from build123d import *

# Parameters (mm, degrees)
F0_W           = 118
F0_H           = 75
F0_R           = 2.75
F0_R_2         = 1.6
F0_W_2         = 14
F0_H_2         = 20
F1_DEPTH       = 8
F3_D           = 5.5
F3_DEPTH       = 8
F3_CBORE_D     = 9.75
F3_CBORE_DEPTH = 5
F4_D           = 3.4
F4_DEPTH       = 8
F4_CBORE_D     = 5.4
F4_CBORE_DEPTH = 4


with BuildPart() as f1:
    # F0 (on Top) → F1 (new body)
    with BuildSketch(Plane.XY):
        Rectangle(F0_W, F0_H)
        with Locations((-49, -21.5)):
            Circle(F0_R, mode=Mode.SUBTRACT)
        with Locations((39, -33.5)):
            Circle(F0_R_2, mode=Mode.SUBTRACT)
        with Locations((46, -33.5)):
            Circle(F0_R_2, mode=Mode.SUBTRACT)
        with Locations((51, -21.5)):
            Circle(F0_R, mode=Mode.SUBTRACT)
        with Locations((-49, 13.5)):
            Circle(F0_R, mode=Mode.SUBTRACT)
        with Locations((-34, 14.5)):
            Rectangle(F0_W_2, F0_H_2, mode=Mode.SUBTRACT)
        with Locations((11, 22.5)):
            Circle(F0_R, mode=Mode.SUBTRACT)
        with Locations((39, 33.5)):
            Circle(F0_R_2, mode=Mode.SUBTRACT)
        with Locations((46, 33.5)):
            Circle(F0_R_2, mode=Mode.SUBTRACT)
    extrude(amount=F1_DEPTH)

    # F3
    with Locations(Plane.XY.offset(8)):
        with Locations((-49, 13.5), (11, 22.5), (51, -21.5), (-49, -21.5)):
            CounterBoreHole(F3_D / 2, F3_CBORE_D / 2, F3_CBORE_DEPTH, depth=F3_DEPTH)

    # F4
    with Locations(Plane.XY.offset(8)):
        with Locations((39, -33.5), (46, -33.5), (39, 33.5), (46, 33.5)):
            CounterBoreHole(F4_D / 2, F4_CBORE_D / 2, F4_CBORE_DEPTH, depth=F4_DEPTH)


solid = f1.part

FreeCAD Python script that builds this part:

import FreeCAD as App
import Part
import Sketcher
from FreeCAD import Vector


def add_polygon(sketch, points):
    """Adds a closed chain of lines whose ends are joined by coincident constraints."""
    first, n = sketch.GeometryCount, len(points)
    for a, b in zip(points, points[1:] + points[:1]):
        sketch.addGeometry(Part.LineSegment(App.Vector(*a, 0), App.Vector(*b, 0)), False)
    for i in range(n):
        sketch.addConstraint(Sketcher.Constraint("Coincident", first + i, 2, first + (i + 1) % n, 1))

doc = App.newDocument("Part")
body = doc.addObject("PartDesign::Body", "Body")

sketch1 = body.newObject("Sketcher::SketchObject", "Sketch")
sketch1.AttachmentSupport = (doc.getObject("XY_Plane"), [""])
sketch1.MapMode = "FlatFace"
add_polygon(sketch1, [(-59, 37.5), (-59, -37.5), (59, -37.5), (59, 37.5)])
sketch1.addGeometry(Part.Circle(Vector(-49, -21.5, 0), Vector(0, 0, 1), 2.75), False)
sketch1.addGeometry(Part.Circle(Vector(39, -33.5, 0), Vector(0, 0, 1), 1.6), False)
sketch1.addGeometry(Part.Circle(Vector(46, -33.5, 0), Vector(0, 0, 1), 1.6), False)
sketch1.addGeometry(Part.Circle(Vector(51, -21.5, 0), Vector(0, 0, 1), 2.75), False)
sketch1.addGeometry(Part.Circle(Vector(-49, 13.5, 0), Vector(0, 0, 1), 2.75), False)
add_polygon(sketch1, [(-27, 4.5), (-41, 4.5), (-41, 24.5), (-27, 24.5)])
sketch1.addGeometry(Part.Circle(Vector(11, 22.5, 0), Vector(0, 0, 1), 2.75), False)
sketch1.addGeometry(Part.Circle(Vector(39, 33.5, 0), Vector(0, 0, 1), 1.6), False)
sketch1.addGeometry(Part.Circle(Vector(46, 33.5, 0), Vector(0, 0, 1), 1.6), False)
sketch1.addConstraint(Sketcher.Constraint("Vertical", 0))
sketch1.addConstraint(Sketcher.Constraint("Horizontal", 1))
sketch1.addConstraint(Sketcher.Constraint("Vertical", 2))
sketch1.addConstraint(Sketcher.Constraint("Horizontal", 3))
sketch1.addConstraint(Sketcher.Constraint("Horizontal", 9))
sketch1.addConstraint(Sketcher.Constraint("Vertical", 10))
sketch1.addConstraint(Sketcher.Constraint("Horizontal", 11))
sketch1.addConstraint(Sketcher.Constraint("Vertical", 12))
sketch1.addConstraint(Sketcher.Constraint("Equal", 5, 6))
sketch1.addConstraint(Sketcher.Constraint("Equal", 4, 7))
sketch1.addConstraint(Sketcher.Constraint("Equal", 7, 8))
sketch1.addConstraint(Sketcher.Constraint("Equal", 8, 13))
sketch1.addConstraint(Sketcher.Constraint("Equal", 6, 14))
sketch1.addConstraint(Sketcher.Constraint("Equal", 14, 15))
sketch1.addConstraint(Sketcher.Constraint("Symmetric", 0, 2, 2, 2, -1, 1))
sketch1.addConstraint(Sketcher.Constraint("Symmetric", 5, 3, 14, 3, -1))
sketch1.addConstraint(Sketcher.Constraint("Symmetric", 6, 3, 15, 3, -1))
sketch1.addConstraint(Sketcher.Constraint("Horizontal", 5, 3, 6, 3))
sketch1.addConstraint(Sketcher.Constraint("Horizontal", 4, 3, 7, 3))
sketch1.addConstraint(Sketcher.Constraint("Vertical", 4, 3, 8, 3))
sketch1.addConstraint(Sketcher.Constraint("Diameter", 4, 5.5))
sketch1.addConstraint(Sketcher.Constraint("Diameter", 5, 3.2))
sketch1.addConstraint(Sketcher.Constraint("DistanceX", 1, 1, 1, 2, 118.0))
sketch1.addConstraint(Sketcher.Constraint("DistanceX", 9, 2, 9, 1, 14.0))
sketch1.addConstraint(Sketcher.Constraint("DistanceY", 0, 2, 0, 1, 75.0))
sketch1.addConstraint(Sketcher.Constraint("DistanceY", 10, 1, 10, 2, 20.0))
sketch1.addConstraint(Sketcher.Constraint("DistanceX", 4, 3, -1, 1, 49.0))
sketch1.addConstraint(Sketcher.Constraint("DistanceX", -1, 1, 5, 3, 39.0))
sketch1.addConstraint(Sketcher.Constraint("DistanceX", -1, 1, 6, 3, 46.0))
sketch1.addConstraint(Sketcher.Constraint("DistanceX", -1, 1, 7, 3, 51.0))
sketch1.addConstraint(Sketcher.Constraint("DistanceX", -1, 1, 13, 3, 11.0))
sketch1.addConstraint(Sketcher.Constraint("DistanceX", 9, 2, -1, 1, 41.0))
sketch1.addConstraint(Sketcher.Constraint("DistanceY", 5, 3, 4, 3, 12.0))
sketch1.addConstraint(Sketcher.Constraint("DistanceY", 4, 3, 8, 3, 35.0))
sketch1.addConstraint(Sketcher.Constraint("DistanceY", 7, 3, 13, 3, 44.0))
sketch1.addConstraint(Sketcher.Constraint("DistanceY", 13, 3, 14, 3, 11.0))
sketch1.addConstraint(Sketcher.Constraint("DistanceY", 9, 2, 8, 3, 9.0))
pad1 = body.newObject("PartDesign::Pad", "Pad")
pad1.Profile = sketch1
pad1.Length = 8

sketch2 = body.newObject("Sketcher::SketchObject", "Sketch001")
sketch2.AttachmentSupport = (doc.getObject("XY_Plane"), [""])
sketch2.MapMode = "FlatFace"
sketch2.AttachmentOffset = App.Placement(Vector(0, 0, 8), App.Rotation())
sketch2.addGeometry(Part.Circle(Vector(-49, 13.5, 0), Vector(0, 0, 1), 2.75), False)
sketch2.addGeometry(Part.Circle(Vector(11, 22.5, 0), Vector(0, 0, 1), 2.75), False)
sketch2.addGeometry(Part.Circle(Vector(51, -21.5, 0), Vector(0, 0, 1), 2.75), False)
sketch2.addGeometry(Part.Circle(Vector(-49, -21.5, 0), Vector(0, 0, 1), 2.75), False)
sketch2.addConstraint(Sketcher.Constraint("Equal", 0, 1))
sketch2.addConstraint(Sketcher.Constraint("Equal", 1, 2))
sketch2.addConstraint(Sketcher.Constraint("Equal", 2, 3))
sketch2.addConstraint(Sketcher.Constraint("Horizontal", 2, 3, 3, 3))
sketch2.addConstraint(Sketcher.Constraint("Vertical", 0, 3, 3, 3))
sketch2.addConstraint(Sketcher.Constraint("Diameter", 0, 5.5))
sketch2.addConstraint(Sketcher.Constraint("DistanceX", 0, 3, -1, 1, 49.0))
sketch2.addConstraint(Sketcher.Constraint("DistanceX", -1, 1, 1, 3, 11.0))
sketch2.addConstraint(Sketcher.Constraint("DistanceX", -1, 1, 2, 3, 51.0))
sketch2.addConstraint(Sketcher.Constraint("DistanceY", 0, 3, 1, 3, 9.0))
sketch2.addConstraint(Sketcher.Constraint("DistanceY", 2, 3, 1, 3, 44.0))
sketch2.addConstraint(Sketcher.Constraint("DistanceY", -1, 1, 0, 3, 13.5))
doc.recompute()
hole = body.newObject("PartDesign::Hole", "Hole")
hole.Profile = sketch2
hole.ThreadType = "None"
hole.Diameter = 5.5
hole.DepthType = "Dimension"
hole.Depth = 8
hole.DrillPoint = "Flat"
hole.HoleCutType = "Counterbore"
hole.HoleCutDiameter = 9.75
hole.HoleCutDepth = 5

sketch3 = body.newObject("Sketcher::SketchObject", "Sketch002")
sketch3.AttachmentSupport = (doc.getObject("XY_Plane"), [""])
sketch3.MapMode = "FlatFace"
sketch3.AttachmentOffset = App.Placement(Vector(0, 0, 8), App.Rotation())
sketch3.addGeometry(Part.Circle(Vector(39, -33.5, 0), Vector(0, 0, 1), 1.7), False)
sketch3.addGeometry(Part.Circle(Vector(46, -33.5, 0), Vector(0, 0, 1), 1.7), False)
sketch3.addGeometry(Part.Circle(Vector(39, 33.5, 0), Vector(0, 0, 1), 1.7), False)
sketch3.addGeometry(Part.Circle(Vector(46, 33.5, 0), Vector(0, 0, 1), 1.7), False)
sketch3.addConstraint(Sketcher.Constraint("Equal", 0, 1))
sketch3.addConstraint(Sketcher.Constraint("Equal", 1, 2))
sketch3.addConstraint(Sketcher.Constraint("Equal", 2, 3))
sketch3.addConstraint(Sketcher.Constraint("Symmetric", 0, 3, 2, 3, -1))
sketch3.addConstraint(Sketcher.Constraint("Symmetric", 1, 3, 3, 3, -1))
sketch3.addConstraint(Sketcher.Constraint("Horizontal", 0, 3, 1, 3))
sketch3.addConstraint(Sketcher.Constraint("Diameter", 0, 3.4))
sketch3.addConstraint(Sketcher.Constraint("DistanceX", -1, 1, 0, 3, 39.0))
sketch3.addConstraint(Sketcher.Constraint("DistanceX", -1, 1, 1, 3, 46.0))
sketch3.addConstraint(Sketcher.Constraint("DistanceY", 0, 3, 2, 3, 67.0))
doc.recompute()
hole2 = body.newObject("PartDesign::Hole", "Hole001")
hole2.Profile = sketch3
hole2.ThreadType = "None"
hole2.Diameter = 3.4
hole2.DepthType = "Dimension"
hole2.Depth = 8
hole2.DrillPoint = "Flat"
hole2.HoleCutType = "Counterbore"
hole2.HoleCutDiameter = 5.4
hole2.HoleCutDepth = 4

doc.recompute()
